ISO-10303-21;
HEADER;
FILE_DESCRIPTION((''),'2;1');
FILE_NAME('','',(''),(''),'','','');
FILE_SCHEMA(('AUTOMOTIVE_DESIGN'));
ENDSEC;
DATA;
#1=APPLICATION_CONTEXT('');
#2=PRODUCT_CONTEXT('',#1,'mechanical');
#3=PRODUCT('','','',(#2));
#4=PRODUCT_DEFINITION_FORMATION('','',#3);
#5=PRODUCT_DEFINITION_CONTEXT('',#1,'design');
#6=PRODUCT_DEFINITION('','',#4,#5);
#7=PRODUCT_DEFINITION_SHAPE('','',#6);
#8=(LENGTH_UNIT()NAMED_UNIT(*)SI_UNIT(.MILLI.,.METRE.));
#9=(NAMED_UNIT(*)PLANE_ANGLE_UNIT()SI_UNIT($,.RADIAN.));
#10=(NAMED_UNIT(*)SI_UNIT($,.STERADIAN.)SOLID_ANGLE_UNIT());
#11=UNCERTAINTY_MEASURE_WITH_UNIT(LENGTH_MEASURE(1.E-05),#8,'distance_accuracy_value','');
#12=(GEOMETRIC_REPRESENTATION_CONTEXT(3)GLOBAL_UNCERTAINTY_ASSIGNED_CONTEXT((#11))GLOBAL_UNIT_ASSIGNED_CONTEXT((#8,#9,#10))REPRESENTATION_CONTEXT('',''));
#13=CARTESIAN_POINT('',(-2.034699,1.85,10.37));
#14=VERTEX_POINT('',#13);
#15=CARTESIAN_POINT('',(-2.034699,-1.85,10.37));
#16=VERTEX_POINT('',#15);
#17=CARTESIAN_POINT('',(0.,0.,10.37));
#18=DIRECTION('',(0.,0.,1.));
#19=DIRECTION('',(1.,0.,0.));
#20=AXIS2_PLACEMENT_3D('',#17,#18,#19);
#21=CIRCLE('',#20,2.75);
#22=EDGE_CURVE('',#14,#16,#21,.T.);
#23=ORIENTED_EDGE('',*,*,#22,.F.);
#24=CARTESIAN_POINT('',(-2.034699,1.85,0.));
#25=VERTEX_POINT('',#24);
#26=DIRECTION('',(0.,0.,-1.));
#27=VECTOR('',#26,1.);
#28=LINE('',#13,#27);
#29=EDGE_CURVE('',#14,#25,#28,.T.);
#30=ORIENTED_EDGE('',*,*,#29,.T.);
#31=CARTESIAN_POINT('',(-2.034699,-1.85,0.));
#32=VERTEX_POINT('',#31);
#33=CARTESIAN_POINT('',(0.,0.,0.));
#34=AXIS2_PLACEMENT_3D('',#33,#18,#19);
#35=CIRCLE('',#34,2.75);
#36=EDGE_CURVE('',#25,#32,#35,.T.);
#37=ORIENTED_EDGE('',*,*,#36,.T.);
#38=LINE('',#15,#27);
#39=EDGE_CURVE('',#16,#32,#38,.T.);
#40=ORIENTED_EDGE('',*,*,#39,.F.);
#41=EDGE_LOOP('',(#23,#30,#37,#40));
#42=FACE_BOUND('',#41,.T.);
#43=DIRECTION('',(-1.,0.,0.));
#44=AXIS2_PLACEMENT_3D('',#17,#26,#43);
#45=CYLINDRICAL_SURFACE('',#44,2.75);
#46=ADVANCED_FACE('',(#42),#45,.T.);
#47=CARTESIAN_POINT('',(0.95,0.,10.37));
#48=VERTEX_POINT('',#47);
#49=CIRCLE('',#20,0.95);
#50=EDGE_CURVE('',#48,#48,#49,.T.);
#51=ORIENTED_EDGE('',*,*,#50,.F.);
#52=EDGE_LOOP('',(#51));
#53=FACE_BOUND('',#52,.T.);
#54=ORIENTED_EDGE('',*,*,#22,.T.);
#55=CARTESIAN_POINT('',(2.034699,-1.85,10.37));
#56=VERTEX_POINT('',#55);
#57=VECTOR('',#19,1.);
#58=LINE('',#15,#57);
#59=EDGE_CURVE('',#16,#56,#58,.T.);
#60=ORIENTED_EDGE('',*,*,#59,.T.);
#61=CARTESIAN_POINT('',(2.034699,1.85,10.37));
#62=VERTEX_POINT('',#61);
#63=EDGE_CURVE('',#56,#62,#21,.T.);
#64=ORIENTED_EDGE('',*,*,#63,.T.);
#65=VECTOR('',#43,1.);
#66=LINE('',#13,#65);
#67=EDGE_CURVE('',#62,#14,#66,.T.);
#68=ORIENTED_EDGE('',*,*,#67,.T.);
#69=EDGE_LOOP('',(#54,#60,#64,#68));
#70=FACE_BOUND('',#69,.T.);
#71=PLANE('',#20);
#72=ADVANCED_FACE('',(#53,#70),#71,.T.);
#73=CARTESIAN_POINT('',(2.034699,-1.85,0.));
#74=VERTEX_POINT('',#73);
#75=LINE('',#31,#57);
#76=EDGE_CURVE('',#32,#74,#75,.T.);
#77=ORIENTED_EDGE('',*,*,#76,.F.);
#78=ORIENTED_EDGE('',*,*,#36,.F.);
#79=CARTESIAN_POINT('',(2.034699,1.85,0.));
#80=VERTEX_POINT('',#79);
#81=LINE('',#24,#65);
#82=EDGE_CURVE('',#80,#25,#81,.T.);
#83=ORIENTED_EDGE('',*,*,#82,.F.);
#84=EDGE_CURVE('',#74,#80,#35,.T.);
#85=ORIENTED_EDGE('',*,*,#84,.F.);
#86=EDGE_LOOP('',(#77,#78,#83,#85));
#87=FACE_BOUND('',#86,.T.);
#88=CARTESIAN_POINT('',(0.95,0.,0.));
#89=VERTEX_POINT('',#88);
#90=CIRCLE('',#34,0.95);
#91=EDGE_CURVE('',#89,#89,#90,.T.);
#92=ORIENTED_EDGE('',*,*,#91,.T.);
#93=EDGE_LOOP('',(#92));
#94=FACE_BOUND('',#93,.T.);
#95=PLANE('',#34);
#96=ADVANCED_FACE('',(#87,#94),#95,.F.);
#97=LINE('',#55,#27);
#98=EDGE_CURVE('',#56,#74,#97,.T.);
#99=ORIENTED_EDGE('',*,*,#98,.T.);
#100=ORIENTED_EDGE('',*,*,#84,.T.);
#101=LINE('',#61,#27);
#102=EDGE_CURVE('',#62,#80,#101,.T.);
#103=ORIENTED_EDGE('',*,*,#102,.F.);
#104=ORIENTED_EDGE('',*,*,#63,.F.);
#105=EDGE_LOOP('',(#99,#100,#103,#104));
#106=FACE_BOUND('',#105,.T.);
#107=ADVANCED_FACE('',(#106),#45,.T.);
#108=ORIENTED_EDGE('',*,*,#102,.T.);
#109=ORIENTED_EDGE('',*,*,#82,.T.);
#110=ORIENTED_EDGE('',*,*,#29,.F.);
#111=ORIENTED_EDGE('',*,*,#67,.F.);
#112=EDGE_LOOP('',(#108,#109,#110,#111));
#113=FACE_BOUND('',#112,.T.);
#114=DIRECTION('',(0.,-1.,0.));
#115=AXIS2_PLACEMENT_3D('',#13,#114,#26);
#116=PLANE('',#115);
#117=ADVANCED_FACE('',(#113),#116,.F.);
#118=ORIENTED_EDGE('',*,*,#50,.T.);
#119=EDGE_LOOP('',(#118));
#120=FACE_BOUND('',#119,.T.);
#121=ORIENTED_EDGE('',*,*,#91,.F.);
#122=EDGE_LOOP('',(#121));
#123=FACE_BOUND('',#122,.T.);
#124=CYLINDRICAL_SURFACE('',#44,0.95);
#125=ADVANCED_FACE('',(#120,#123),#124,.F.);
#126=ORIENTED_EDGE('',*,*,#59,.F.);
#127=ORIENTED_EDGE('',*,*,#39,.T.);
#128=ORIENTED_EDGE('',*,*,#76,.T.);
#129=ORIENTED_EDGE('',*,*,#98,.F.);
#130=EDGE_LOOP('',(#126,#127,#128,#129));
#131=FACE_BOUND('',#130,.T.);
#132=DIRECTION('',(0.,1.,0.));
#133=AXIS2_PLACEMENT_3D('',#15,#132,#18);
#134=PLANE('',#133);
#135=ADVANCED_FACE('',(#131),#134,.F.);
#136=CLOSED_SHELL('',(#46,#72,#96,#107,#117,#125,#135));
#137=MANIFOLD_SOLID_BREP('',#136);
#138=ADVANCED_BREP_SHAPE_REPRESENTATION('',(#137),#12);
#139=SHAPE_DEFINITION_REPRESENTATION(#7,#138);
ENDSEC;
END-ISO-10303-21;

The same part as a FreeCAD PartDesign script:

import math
import FreeCAD as App
import Part
import Sketcher

V = App.Vector

doc = App.newDocument("Part")
body = doc.addObject("PartDesign::Body", "Body")

# Sketch on XY plane
sketch1 = body.newObject("Sketcher::SketchObject", "Sketch")
sketch1.AttachmentSupport = (doc.getObject("XY_Plane"), [""])
sketch1.MapMode = "FlatFace"
sketch1.addGeometry(Part.LineSegment(V(2.034699, 1.85, 0), V(-2.034699, 1.85, 0)), False)
sketch1.addGeometry(Part.ArcOfCircle(Part.Circle(V(0, 0, 0), V(0, 0, 1), 2.75), math.radians(137.722092), math.radians(222.277908)), False)
sketch1.addGeometry(Part.LineSegment(V(-2.034699, -1.85, 0), V(2.034699, -1.85, 0)), False)
sketch1.addGeometry(Part.ArcOfCircle(Part.Circle(V(0, 0, 0), V(0, 0, 1), 2.75), math.radians(-42.277908), math.radians(42.277908)), False)
sketch1.addGeometry(Part.Circle(V(0, 0, 0), V(0, 0, 1), 0.95), False)
sketch1.addConstraint(Sketcher.Constraint("Coincident", 0, 2, 1, 1))
sketch1.addConstraint(Sketcher.Constraint("Coincident", 1, 2, 2, 1))
sketch1.addConstraint(Sketcher.Constraint("Coincident", 2, 2, 3, 1))
sketch1.addConstraint(Sketcher.Constraint("Coincident", 3, 2, 0, 1))
sketch1.addConstraint(Sketcher.Constraint("Horizontal", 0))
sketch1.addConstraint(Sketcher.Constraint("Horizontal", 2))
sketch1.addConstraint(Sketcher.Constraint("Coincident", 1, 3, -1, 1))
sketch1.addConstraint(Sketcher.Constraint("Coincident", 3, 3, -1, 1))
sketch1.addConstraint(Sketcher.Constraint("Coincident", 4, 3, -1, 1))
sketch1.addConstraint(Sketcher.Constraint("Equal", 1, 3))
sketch1.addConstraint(Sketcher.Constraint("Vertical", 0, 2, 1, 2))
sketch1.addConstraint(Sketcher.Constraint("Diameter", 4, 1.9))
sketch1.addConstraint(Sketcher.Constraint("Radius", 1, 2.75))
sketch1.addConstraint(Sketcher.Constraint("DistanceY", 1, 2, 0, 2, 3.7))
pad1 = body.newObject("PartDesign::Pad", "Pad")
pad1.Profile = sketch1
pad1.Length = 10.37

doc.recompute()
